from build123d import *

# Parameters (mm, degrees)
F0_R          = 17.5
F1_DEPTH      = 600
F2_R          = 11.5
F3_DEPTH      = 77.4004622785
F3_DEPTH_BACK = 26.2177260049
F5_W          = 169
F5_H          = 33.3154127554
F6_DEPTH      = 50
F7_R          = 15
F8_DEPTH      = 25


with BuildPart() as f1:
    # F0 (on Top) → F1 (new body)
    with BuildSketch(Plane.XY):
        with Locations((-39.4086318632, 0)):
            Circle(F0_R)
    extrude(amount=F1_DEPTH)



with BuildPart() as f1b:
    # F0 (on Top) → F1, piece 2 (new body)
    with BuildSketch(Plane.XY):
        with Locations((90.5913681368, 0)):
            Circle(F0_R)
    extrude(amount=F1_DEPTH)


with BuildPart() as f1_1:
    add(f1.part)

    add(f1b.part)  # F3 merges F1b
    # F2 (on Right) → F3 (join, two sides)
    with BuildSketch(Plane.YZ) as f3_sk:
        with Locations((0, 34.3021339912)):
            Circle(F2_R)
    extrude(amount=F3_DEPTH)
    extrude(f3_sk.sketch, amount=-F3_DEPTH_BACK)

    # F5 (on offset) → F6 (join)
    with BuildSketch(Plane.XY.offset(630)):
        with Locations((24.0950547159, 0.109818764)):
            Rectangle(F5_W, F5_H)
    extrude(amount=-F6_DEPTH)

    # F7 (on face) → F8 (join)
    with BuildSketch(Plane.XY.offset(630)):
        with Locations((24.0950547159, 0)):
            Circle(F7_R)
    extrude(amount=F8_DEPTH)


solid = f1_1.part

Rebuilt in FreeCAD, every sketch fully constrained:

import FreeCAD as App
import Part
import Sketcher
Q = App.Units.Quantity

doc = App.newDocument("Part")
params = doc.addObject("Spreadsheet::Sheet", "Params")
for row, (alias, value) in enumerate([
    ("sketch1_diameter", "35 mm"),
    ("pad1_length", "600 mm"),
    ("sketch2_diameter", "35 mm"),
    ("pad2_length", "600 mm"),
    ("sketch3_diameter", "23 mm"),
    ("pad3_length", "77.400462 mm"),
    ("pad3_length2", "26.217726 mm"),
    ("sketch4_width", "169 mm"),
    ("pad4_length", "50 mm"),
    ("sketch5_diameter", "30 mm"),
    ("pad5_length", "25 mm"),
], start=1):
    params.set(f"A{row}", alias)
    params.set(f"B{row}", "=" + value)
    params.setAlias(f"B{row}", alias)

body = doc.addObject("PartDesign::Body", "Body")

# Sketch on XY plane
sketch1 = body.newObject("Sketcher::SketchObject", "Sketch")
sketch1.AttachmentSupport = (doc.getObject("XY_Plane"), [""])
sketch1.MapMode = "FlatFace"
sketch1.addGeometry(Part.Circle(App.Vector(-39, 0, 0), App.Vector(0, 0, 1), 18), False)
sketch1.addConstraint(Sketcher.Constraint("PointOnObject", 0, 3, -1))
sketch1.addConstraint(Sketcher.Constraint("Diameter", 0, Q("35 mm")))
sketch1.addConstraint(Sketcher.Constraint("DistanceX", 0, 3, -1, 1, Q("39.408632 mm")))
sketch1.setExpression("Constraints[1]", "Params.sketch1_diameter")
pad1 = body.newObject("PartDesign::Pad", "Pad")
pad1.Profile = sketch1
pad1.setExpression("Length", "Params.pad1_length")
body2 = doc.addObject("PartDesign::Body", "Body001")

# Sketch on XY plane
sketch2 = body2.newObject("Sketcher::SketchObject", "Sketch001")
sketch2.AttachmentSupport = (doc.getObject("XY_Plane001"), [""])
sketch2.MapMode = "FlatFace"
sketch2.addGeometry(Part.Circle(App.Vector(91, 0, 0), App.Vector(0, 0, 1), 18), False)
sketch2.addConstraint(Sketcher.Constraint("PointOnObject", 0, 3, -1))
sketch2.addConstraint(Sketcher.Constraint("Diameter", 0, Q("35 mm")))
sketch2.addConstraint(Sketcher.Constraint("DistanceX", -1, 1, 0, 3, Q("90.591368 mm")))
sketch2.setExpression("Constraints[1]", "Params.sketch2_diameter")
pad2 = body2.newObject("PartDesign::Pad", "Pad001")
pad2.Profile = sketch2
pad2.setExpression("Length", "Params.pad2_length")
body.AllowCompound = True
doc.recompute()

boolean = body.newObject("PartDesign::Boolean", "Boolean")
boolean.Type = "Fuse"
boolean.addObjects([body2])

# Sketch on YZ plane
sketch3 = body.newObject("Sketcher::SketchObject", "Sketch002")
sketch3.AttachmentSupport = (doc.getObject("YZ_Plane"), [""])
sketch3.MapMode = "FlatFace"
sketch3.addGeometry(Part.Circle(App.Vector(0, 34, 0), App.Vector(0, 0, 1), 12), False)
sketch3.addConstraint(Sketcher.Constraint("PointOnObject", 0, 3, -2))
sketch3.addConstraint(Sketcher.Constraint("Diameter", 0, Q("23 mm")))
sketch3.addConstraint(Sketcher.Constraint("DistanceY", -1, 1, 0, 3, Q("34.302134 mm")))
sketch3.setExpression("Constraints[1]", "Params.sketch3_diameter")
pad3 = body.newObject("PartDesign::Pad", "Pad002")
pad3.Profile = sketch3
pad3.Type = "TwoLengths"
pad3.setExpression("Length", "Params.pad3_length")
pad3.setExpression("Length2", "Params.pad3_length2")

# Sketch on XY plane
sketch4 = body.newObject("Sketcher::SketchObject", "Sketch003")
sketch4.AttachmentSupport = (doc.getObject("XY_Plane"), [""])
sketch4.MapMode = "FlatFace"
sketch4.AttachmentOffset = App.Placement(App.Vector(0, 0, 630), App.Rotation())
sketch4.addGeometry(Part.LineSegment(App.Vector(-60, 17, 0), App.Vector(-60, -17, 0)), False)
sketch4.addGeometry(Part.LineSegment(App.Vector(-60, -17, 0), App.Vector(109, -17, 0)), False)
sketch4.addGeometry(Part.LineSegment(App.Vector(109, -17, 0), App.Vector(109, 17, 0)), False)
sketch4.addGeometry(Part.LineSegment(App.Vector(109, 17, 0), App.Vector(-60, 17, 0)), False)
sketch4.addConstraint(Sketcher.Constraint("Coincident", 0, 2, 1, 1))
sketch4.addConstraint(Sketcher.Constraint("Coincident", 1, 2, 2, 1))
sketch4.addConstraint(Sketcher.Constraint("Coincident", 2, 2, 3, 1))
sketch4.addConstraint(Sketcher.Constraint("Coincident", 3, 2, 0, 1))
sketch4.addConstraint(Sketcher.Constraint("Vertical", 0))
sketch4.addConstraint(Sketcher.Constraint("Horizontal", 1))
sketch4.addConstraint(Sketcher.Constraint("Vertical", 2))
sketch4.addConstraint(Sketcher.Constraint("Horizontal", 3))
sketch4.addConstraint(Sketcher.Constraint("DistanceX", 1, 1, 1, 2, Q("169 mm")))
sketch4.addConstraint(Sketcher.Constraint("DistanceY", 0, 2, 0, 1, Q("33.315413 mm")))
sketch4.addConstraint(Sketcher.Constraint("DistanceX", 0, 2, -1, 1, Q("60.404945 mm")))
sketch4.addConstraint(Sketcher.Constraint("DistanceY", 0, 2, -1, 1, Q("16.547888 mm")))
sketch4.setExpression("Constraints[8]", "Params.sketch4_width")
pad4 = body.newObject("PartDesign::Pad", "Pad003")
pad4.Profile = sketch4
pad4.setExpression("Length", "Params.pad4_length")
pad4.Reversed = True

# Sketch on XY plane
sketch5 = body.newObject("Sketcher::SketchObject", "Sketch004")
sketch5.AttachmentSupport = (doc.getObject("XY_Plane"), [""])
sketch5.MapMode = "FlatFace"
sketch5.AttachmentOffset = App.Placement(App.Vector(0, 0, 630), App.Rotation())
sketch5.addGeometry(Part.Circle(App.Vector(24, 0, 0), App.Vector(0, 0, 1), 15), False)
sketch5.addConstraint(Sketcher.Constraint("PointOnObject", 0, 3, -1))
sketch5.addConstraint(Sketcher.Constraint("Diameter", 0, Q("30 mm")))
sketch5.addConstraint(Sketcher.Constraint("DistanceX", -1, 1, 0, 3, Q("24.095055 mm")))
sketch5.setExpression("Constraints[1]", "Params.sketch5_diameter")
pad5 = body.newObject("PartDesign::Pad", "Pad004")
pad5.Profile = sketch5
pad5.setExpression("Length", "Params.pad5_length")

doc.recompute()
